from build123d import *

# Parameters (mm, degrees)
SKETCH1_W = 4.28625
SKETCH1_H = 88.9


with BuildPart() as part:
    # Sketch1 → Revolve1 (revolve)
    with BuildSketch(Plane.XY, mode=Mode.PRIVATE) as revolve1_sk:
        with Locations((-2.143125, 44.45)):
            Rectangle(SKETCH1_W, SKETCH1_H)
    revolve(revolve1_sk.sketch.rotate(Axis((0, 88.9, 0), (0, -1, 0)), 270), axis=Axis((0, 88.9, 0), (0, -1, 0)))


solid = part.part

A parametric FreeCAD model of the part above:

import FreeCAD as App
import Part
import Sketcher

V = App.Vector
Q = App.Units.Quantity


def add_polygon(sketch, points):
    """Adds a closed chain of lines whose ends are joined by coincident constraints."""
    first, n = sketch.GeometryCount, len(points)
    for a, b in zip(points, points[1:] + points[:1]):
        sketch.addGeometry(Part.LineSegment(App.Vector(*a, 0), App.Vector(*b, 0)), False)
    for i in range(n):
        sketch.addConstraint(Sketcher.Constraint("Coincident", first + i, 2, first + (i + 1) % n, 1))

doc = App.newDocument("Part")
body = doc.addObject("PartDesign::Body", "Body")

sketch1 = body.newObject("Sketcher::SketchObject", "Sketch")
sketch1.AttachmentSupport = (doc.getObject("XY_Plane"), [""])
sketch1.MapMode = "FlatFace"
add_polygon(sketch1, [(-4.28625, 88.9), (-4.28625, 0), (0, 0), (0, 88.9)])
sketch1.addConstraint([
    Sketcher.Constraint("Vertical", 0),
    Sketcher.Constraint("Horizontal", 1),
    Sketcher.Constraint("Vertical", 2),
    Sketcher.Constraint("Horizontal", 3),
    Sketcher.Constraint("Coincident", 1, 2, -1, 1),
    Sketcher.Constraint("DistanceY", 0, 2, 0, 1, Q("3.5 in")),
    Sketcher.Constraint("DistanceX", 1, 1, 1, 2, Q("4.28625 mm")),
])
revolution = body.newObject("PartDesign::Revolution", "Revolution")
revolution.Profile = sketch1
revolution.ReferenceAxis = (sketch1, ["V_Axis"])
revolution.Angle = 360

doc.recompute()
